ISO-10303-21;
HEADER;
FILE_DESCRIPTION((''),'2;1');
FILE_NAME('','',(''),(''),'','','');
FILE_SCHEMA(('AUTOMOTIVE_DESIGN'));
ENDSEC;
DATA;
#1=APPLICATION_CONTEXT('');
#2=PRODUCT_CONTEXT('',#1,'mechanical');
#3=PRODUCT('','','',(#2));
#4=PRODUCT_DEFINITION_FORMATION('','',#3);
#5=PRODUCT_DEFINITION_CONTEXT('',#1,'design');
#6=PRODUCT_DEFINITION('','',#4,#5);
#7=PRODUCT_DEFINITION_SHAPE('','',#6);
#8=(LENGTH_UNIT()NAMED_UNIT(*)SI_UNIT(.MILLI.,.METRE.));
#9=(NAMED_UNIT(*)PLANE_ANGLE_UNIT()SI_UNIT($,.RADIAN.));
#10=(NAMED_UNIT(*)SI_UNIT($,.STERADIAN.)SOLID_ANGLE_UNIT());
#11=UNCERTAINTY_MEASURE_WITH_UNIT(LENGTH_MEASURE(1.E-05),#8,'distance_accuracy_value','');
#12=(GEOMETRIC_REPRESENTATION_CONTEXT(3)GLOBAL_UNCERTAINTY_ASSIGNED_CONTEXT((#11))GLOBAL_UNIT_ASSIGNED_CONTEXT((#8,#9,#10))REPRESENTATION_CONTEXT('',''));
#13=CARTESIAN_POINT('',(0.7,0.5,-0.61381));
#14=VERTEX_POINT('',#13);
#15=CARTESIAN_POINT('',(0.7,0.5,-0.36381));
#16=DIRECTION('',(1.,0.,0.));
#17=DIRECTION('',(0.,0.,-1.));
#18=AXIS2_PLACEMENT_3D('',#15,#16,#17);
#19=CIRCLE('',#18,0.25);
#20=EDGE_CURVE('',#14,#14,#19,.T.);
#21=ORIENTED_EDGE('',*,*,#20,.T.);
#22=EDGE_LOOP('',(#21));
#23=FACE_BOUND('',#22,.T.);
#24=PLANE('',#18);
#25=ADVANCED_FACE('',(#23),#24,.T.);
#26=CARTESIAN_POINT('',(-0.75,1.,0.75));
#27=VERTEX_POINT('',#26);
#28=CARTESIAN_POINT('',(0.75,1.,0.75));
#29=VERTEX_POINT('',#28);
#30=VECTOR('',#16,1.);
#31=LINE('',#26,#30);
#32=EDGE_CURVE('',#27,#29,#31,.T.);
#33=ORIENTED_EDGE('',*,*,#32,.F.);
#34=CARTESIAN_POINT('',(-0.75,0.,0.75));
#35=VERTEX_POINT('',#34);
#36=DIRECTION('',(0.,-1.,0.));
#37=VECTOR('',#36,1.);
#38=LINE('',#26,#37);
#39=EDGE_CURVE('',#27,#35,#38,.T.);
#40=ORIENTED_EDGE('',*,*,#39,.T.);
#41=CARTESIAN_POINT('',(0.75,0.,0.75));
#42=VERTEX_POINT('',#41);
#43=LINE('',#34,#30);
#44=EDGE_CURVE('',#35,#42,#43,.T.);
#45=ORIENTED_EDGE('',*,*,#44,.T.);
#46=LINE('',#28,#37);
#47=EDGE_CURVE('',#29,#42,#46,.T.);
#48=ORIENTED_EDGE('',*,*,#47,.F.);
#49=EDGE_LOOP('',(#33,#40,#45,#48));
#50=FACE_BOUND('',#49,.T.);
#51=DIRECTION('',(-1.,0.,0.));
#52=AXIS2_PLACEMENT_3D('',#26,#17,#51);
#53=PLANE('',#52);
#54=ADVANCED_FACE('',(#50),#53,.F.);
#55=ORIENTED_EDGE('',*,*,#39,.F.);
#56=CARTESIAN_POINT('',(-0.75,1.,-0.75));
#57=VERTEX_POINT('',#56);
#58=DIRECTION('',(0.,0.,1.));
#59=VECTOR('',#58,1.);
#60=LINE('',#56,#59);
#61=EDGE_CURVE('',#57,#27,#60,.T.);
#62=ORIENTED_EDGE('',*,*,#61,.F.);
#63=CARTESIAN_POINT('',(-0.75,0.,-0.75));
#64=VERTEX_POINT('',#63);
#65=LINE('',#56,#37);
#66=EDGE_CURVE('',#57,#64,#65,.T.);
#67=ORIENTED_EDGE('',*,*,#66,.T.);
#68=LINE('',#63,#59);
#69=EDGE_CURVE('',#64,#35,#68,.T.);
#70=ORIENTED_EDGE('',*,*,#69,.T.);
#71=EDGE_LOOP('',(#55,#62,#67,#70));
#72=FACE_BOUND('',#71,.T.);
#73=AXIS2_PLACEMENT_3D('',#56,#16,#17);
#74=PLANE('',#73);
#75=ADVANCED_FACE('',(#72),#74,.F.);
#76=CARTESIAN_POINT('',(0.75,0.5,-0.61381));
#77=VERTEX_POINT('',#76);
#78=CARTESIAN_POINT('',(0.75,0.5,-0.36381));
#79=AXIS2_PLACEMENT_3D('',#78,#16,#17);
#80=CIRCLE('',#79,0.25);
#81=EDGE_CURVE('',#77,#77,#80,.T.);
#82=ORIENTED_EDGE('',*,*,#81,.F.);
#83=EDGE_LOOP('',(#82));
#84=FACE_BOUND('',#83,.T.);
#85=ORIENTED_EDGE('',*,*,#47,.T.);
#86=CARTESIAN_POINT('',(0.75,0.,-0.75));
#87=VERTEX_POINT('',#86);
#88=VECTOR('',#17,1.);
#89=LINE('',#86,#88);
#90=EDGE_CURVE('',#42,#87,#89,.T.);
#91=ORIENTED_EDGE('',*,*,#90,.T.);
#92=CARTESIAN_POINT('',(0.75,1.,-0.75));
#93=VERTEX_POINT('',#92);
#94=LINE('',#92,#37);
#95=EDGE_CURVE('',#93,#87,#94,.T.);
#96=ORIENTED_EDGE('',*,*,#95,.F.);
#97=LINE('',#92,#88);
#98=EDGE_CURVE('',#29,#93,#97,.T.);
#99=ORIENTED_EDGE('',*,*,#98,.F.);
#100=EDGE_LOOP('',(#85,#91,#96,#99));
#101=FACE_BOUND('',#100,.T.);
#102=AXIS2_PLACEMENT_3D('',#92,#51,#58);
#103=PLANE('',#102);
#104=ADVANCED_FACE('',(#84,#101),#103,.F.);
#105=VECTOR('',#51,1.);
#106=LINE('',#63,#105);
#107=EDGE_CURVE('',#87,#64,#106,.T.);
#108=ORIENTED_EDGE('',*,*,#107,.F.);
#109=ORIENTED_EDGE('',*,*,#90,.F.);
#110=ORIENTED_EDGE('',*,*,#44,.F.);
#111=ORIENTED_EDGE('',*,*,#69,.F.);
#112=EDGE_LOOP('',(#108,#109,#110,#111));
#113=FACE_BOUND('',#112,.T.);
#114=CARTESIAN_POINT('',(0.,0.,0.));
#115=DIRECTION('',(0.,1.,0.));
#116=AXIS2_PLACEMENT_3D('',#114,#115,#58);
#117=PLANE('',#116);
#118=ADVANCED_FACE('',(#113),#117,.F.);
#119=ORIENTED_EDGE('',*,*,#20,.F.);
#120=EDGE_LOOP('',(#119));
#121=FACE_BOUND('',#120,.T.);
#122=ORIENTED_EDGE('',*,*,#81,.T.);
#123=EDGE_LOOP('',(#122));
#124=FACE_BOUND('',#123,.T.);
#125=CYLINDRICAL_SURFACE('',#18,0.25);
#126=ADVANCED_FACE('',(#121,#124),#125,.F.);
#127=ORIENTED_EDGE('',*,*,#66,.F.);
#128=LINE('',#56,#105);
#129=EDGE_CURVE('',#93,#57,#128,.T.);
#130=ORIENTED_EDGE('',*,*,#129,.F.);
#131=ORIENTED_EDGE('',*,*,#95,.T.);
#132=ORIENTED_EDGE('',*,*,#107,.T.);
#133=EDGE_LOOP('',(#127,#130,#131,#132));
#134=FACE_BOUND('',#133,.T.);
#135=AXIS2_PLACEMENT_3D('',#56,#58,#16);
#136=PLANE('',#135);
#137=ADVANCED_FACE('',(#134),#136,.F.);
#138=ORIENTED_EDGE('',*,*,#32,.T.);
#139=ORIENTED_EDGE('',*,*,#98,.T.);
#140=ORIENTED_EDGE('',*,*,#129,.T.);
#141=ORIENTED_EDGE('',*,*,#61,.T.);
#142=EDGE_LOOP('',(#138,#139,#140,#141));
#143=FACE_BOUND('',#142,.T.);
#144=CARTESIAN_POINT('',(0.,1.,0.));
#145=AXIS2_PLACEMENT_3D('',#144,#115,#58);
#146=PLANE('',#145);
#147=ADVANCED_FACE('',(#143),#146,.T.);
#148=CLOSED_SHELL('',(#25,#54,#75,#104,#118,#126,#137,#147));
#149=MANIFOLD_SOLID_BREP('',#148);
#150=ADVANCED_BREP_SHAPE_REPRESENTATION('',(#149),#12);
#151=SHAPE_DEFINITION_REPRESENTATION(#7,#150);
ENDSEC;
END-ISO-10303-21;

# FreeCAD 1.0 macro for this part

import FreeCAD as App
import Part
import Sketcher
Q = App.Units.Quantity

doc = App.newDocument("Part")
params = doc.addObject("Spreadsheet::Sheet", "Params")
for row, (alias, value) in enumerate([
    ("sketch1_width", "1.5 mm"),
    ("pad1_length", "1 mm"),
    ("sketch2_diameter", "0.5 mm"),
    ("pocket1_length", "0.05 mm"),
], start=1):
    params.set(f"A{row}", alias)
    params.set(f"B{row}", "=" + value)
    params.setAlias(f"B{row}", alias)

body = doc.addObject("PartDesign::Body", "Body")

# Sketch on XZ plane
sketch1 = body.newObject("Sketcher::SketchObject", "Sketch")
sketch1.AttachmentSupport = (doc.getObject("XZ_Plane"), [""])
sketch1.MapMode = "FlatFace"
sketch1.addGeometry([
    Part.LineSegment(App.Vector(-0.8, -0.8, 0), App.Vector(-0.8, 0.8, 0)),
    Part.LineSegment(App.Vector(-0.8, 0.8, 0), App.Vector(0.8, 0.8, 0)),
    Part.LineSegment(App.Vector(0.8, 0.8, 0), App.Vector(0.8, -0.8, 0)),
    Part.LineSegment(App.Vector(0.8, -0.8, 0), App.Vector(-0.8, -0.8, 0)),
], False)
sketch1.addConstraint([
    Sketcher.Constraint("Coincident", 0, 2, 1, 1),
    Sketcher.Constraint("Coincident", 1, 2, 2, 1),
    Sketcher.Constraint("Coincident", 2, 2, 3, 1),
    Sketcher.Constraint("Coincident", 3, 2, 0, 1),
    Sketcher.Constraint("Vertical", 0),
    Sketcher.Constraint("Horizontal", 1),
    Sketcher.Constraint("Vertical", 2),
    Sketcher.Constraint("Horizontal", 3),
    Sketcher.Constraint("Symmetric", 0, 2, 2, 2, -1, 1),
    Sketcher.Constraint("Equal", 3, 0),
    Sketcher.Constraint("DistanceX", 1, 1, 1, 2, Q("1.5 mm")),
])
sketch1.setExpression("Constraints[10]", "Params.sketch1_width")
pad1 = body.newObject("PartDesign::Pad", "Pad")
pad1.Profile = sketch1
pad1.setExpression("Length", "Params.pad1_length")
pad1.Reversed = True

# Sketch on YZ plane
sketch2 = body.newObject("Sketcher::SketchObject", "Sketch001")
sketch2.AttachmentSupport = (doc.getObject("YZ_Plane"), [""])
sketch2.MapMode = "FlatFace"
sketch2.AttachmentOffset = App.Placement(App.Vector(0, 0, 0.75), App.Rotation())
sketch2.addGeometry(Part.Circle(App.Vector(0.5, -0.36, 0), App.Vector(0, 0, 1), 0.25), False)
sketch2.addConstraint([
    Sketcher.Constraint("Diameter", 0, Q("0.5 mm")),
    Sketcher.Constraint("DistanceX", -1, 1, 0, 3, Q("0.5 mm")),
    Sketcher.Constraint("DistanceY", 0, 3, -1, 1, Q("0.36381 mm")),
])
sketch2.setExpression("Constraints[0]", "Params.sketch2_diameter")
pocket1 = body.newObject("PartDesign::Pocket", "Pocket")
pocket1.Profile = sketch2
pocket1.setExpression("Length", "Params.pocket1_length")

doc.recompute()
